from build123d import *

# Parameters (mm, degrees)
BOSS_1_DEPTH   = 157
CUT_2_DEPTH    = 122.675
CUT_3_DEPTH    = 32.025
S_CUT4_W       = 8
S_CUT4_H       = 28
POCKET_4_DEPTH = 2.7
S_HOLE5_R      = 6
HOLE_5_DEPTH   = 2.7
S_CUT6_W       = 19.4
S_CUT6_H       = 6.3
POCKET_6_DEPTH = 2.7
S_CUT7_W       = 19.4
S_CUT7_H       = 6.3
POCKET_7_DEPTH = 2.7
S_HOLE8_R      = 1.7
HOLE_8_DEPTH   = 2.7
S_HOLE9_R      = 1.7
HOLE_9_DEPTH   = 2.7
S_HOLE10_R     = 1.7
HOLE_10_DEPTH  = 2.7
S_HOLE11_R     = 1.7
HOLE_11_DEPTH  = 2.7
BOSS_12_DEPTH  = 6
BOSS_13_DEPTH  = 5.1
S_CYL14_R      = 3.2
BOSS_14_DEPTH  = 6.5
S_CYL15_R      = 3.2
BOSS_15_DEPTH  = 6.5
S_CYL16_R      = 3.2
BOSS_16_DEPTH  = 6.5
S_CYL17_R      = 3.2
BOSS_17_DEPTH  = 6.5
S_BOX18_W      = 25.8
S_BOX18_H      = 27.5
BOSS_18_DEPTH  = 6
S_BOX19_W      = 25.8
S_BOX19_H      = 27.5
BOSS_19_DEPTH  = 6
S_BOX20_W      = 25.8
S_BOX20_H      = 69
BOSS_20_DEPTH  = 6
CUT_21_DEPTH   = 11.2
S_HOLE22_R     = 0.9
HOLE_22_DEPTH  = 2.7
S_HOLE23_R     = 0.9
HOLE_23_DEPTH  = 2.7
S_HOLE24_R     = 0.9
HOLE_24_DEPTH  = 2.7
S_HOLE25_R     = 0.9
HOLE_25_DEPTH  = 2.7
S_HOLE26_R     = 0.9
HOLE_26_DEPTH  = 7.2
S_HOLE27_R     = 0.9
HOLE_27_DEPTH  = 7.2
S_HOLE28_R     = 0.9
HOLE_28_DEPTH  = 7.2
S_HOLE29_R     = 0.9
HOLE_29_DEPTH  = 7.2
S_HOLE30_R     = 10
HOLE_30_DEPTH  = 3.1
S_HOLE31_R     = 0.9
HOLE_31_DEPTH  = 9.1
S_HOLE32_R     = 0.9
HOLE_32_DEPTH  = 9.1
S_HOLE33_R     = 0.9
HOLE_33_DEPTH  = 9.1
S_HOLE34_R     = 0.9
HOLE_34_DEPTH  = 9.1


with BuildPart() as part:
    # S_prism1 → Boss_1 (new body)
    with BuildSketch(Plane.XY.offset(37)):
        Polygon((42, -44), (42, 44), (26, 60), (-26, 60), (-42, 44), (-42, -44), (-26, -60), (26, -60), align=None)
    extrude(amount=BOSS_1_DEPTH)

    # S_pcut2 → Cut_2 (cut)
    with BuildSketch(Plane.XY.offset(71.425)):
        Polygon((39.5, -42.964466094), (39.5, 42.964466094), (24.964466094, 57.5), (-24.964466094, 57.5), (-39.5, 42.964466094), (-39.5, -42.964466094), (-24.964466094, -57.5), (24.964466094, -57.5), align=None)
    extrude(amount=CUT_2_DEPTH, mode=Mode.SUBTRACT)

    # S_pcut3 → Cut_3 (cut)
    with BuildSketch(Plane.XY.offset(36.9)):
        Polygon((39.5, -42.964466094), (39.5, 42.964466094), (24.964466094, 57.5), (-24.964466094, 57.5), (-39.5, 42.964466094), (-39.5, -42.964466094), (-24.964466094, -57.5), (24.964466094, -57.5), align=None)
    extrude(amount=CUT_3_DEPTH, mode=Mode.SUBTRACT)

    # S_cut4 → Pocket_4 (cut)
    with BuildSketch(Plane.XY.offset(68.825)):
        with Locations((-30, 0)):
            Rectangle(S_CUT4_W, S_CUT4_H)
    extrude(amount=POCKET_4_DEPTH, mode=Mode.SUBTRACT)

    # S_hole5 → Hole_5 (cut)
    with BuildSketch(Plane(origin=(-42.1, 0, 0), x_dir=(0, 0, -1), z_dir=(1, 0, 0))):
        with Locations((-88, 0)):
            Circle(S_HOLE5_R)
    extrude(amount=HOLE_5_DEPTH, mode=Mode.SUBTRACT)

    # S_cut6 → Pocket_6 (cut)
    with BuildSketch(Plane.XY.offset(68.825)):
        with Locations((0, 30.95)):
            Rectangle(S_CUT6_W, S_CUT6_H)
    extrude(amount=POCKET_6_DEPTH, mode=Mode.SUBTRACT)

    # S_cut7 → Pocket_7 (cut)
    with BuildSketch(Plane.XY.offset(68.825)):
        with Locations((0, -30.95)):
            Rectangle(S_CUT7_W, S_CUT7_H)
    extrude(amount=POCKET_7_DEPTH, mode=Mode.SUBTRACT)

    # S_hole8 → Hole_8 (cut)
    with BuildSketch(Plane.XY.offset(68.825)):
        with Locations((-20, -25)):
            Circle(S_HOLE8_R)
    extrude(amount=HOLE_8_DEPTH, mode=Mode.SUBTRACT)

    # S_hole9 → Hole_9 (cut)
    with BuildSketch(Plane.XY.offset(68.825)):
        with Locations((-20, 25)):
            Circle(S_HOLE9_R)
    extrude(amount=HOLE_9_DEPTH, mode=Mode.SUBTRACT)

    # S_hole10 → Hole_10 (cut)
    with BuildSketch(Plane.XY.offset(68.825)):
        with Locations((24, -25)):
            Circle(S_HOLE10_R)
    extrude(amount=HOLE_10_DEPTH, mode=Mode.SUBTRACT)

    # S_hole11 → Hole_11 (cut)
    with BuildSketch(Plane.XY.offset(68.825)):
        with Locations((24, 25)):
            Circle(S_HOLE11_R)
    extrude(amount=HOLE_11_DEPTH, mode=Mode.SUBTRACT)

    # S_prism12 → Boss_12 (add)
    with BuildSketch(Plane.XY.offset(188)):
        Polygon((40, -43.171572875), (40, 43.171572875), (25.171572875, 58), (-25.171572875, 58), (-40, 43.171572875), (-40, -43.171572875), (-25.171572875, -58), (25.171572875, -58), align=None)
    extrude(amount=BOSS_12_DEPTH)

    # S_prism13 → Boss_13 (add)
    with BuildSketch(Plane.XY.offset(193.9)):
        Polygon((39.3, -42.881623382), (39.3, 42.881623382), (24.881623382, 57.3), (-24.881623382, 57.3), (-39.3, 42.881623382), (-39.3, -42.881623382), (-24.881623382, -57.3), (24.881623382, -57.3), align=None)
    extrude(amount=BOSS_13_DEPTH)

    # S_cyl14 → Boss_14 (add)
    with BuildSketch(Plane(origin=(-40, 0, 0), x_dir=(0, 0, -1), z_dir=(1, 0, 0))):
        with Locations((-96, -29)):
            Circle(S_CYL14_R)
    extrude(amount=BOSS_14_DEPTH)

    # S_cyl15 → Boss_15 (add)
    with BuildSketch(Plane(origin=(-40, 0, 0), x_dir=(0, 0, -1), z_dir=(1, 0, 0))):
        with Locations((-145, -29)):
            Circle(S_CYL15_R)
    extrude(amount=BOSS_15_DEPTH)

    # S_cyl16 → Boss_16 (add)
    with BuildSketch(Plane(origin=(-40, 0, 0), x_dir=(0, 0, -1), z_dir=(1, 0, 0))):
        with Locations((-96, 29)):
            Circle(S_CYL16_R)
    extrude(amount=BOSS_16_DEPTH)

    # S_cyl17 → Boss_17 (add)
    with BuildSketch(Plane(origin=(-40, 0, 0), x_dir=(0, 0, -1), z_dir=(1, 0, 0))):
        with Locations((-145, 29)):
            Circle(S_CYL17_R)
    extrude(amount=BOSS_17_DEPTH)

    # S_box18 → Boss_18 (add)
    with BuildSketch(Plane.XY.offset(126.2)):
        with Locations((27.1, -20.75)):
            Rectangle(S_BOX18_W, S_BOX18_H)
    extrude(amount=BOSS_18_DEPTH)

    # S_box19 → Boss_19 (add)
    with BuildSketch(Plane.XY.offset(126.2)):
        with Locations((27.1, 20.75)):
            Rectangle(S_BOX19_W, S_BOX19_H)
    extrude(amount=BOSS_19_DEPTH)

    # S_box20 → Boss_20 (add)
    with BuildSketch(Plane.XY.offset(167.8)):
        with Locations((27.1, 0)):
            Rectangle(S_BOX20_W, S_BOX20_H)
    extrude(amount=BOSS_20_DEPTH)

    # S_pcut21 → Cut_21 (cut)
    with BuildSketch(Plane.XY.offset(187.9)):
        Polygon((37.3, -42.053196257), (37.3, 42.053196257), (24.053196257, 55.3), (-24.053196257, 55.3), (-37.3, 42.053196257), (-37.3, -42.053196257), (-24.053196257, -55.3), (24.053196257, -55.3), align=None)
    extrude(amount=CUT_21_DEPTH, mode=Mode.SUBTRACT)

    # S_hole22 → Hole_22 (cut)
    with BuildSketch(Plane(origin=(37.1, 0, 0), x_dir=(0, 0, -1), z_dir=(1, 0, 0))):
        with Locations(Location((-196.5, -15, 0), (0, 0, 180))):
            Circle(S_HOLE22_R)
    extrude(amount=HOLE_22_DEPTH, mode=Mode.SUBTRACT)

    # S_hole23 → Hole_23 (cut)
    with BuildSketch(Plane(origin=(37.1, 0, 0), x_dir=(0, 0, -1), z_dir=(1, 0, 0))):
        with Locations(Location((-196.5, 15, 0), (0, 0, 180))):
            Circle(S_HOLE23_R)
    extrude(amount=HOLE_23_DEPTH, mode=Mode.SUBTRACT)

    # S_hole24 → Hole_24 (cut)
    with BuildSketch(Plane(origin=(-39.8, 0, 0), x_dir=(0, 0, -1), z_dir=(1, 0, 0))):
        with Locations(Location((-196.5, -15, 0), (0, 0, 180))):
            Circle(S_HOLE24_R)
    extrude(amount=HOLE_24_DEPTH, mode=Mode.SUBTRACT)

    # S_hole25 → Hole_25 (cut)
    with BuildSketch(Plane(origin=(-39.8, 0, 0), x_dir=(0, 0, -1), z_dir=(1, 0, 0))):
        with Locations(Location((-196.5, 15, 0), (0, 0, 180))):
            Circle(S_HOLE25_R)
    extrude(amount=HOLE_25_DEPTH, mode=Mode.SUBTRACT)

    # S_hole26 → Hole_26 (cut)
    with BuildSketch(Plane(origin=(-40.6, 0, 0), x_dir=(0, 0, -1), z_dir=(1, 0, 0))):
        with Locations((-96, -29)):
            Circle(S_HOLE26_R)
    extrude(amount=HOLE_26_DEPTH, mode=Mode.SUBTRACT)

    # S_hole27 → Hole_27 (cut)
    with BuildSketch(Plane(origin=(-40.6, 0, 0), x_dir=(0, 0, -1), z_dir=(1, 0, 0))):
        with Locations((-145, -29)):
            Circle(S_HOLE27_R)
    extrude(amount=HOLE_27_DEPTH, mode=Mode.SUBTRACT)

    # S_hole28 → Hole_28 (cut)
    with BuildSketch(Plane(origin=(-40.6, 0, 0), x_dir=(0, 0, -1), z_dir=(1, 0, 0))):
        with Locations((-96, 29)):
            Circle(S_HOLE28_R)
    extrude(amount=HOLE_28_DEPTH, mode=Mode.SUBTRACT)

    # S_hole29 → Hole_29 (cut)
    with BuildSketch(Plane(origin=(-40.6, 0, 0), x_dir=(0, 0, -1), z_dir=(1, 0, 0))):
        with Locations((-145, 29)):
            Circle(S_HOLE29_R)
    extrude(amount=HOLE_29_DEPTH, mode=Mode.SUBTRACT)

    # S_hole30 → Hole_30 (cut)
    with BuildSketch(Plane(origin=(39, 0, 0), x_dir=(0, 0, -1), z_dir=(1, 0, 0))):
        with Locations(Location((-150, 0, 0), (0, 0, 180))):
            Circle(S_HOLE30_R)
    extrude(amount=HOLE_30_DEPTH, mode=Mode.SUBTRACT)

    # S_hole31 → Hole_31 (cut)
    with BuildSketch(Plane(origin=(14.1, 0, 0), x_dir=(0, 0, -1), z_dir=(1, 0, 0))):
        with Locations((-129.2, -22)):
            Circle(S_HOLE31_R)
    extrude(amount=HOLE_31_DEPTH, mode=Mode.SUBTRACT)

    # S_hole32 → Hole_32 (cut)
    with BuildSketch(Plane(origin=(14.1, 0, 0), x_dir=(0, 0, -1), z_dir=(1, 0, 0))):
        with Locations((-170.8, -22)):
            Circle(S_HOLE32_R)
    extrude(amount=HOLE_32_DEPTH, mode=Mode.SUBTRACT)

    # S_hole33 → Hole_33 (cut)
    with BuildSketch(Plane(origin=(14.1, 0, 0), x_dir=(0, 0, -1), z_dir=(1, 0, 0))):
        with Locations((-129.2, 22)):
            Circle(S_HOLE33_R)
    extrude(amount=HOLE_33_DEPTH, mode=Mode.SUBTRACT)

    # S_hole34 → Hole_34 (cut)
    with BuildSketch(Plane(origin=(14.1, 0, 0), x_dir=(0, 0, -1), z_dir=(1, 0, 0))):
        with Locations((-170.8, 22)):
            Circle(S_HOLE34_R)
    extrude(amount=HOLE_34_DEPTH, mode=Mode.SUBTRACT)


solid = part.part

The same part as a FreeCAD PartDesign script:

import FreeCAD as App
import Part
import Sketcher
Q = App.Units.Quantity

doc = App.newDocument("Part")
body = doc.addObject("PartDesign::Body", "Body")

sketch1 = body.newObject("Sketcher::SketchObject", "Sketch")
sketch1.AttachmentSupport = (doc.getObject("XY_Plane"), [""])
sketch1.MapMode = "FlatFace"
sketch1.AttachmentOffset = App.Placement(App.Vector(0, 0, 37), App.Rotation())
sketch1.addGeometry([
    Part.LineSegment(App.Vector(42, -44, 0), App.Vector(42, 44, 0)),
    Part.LineSegment(App.Vector(42, 44, 0), App.Vector(26, 60, 0)),
    Part.LineSegment(App.Vector(26, 60, 0), App.Vector(-26, 60, 0)),
    Part.LineSegment(App.Vector(-26, 60, 0), App.Vector(-42, 44, 0)),
    Part.LineSegment(App.Vector(-42, 44, 0), App.Vector(-42, -44, 0)),
    Part.LineSegment(App.Vector(-42, -44, 0), App.Vector(-26, -60, 0)),
    Part.LineSegment(App.Vector(-26, -60, 0), App.Vector(26, -60, 0)),
    Part.LineSegment(App.Vector(26, -60, 0), App.Vector(42, -44, 0)),
], False)
sketch1.addConstraint([
    Sketcher.Constraint("Coincident", 0, 2, 1, 1),
    Sketcher.Constraint("Coincident", 1, 2, 2, 1),
    Sketcher.Constraint("Coincident", 2, 2, 3, 1),
    Sketcher.Constraint("Coincident", 3, 2, 4, 1),
    Sketcher.Constraint("Coincident", 4, 2, 5, 1),
    Sketcher.Constraint("Coincident", 5, 2, 6, 1),
    Sketcher.Constraint("Coincident", 6, 2, 7, 1),
    Sketcher.Constraint("Coincident", 7, 2, 0, 1),
    Sketcher.Constraint("Vertical", 0),
    Sketcher.Constraint("Horizontal", 2),
    Sketcher.Constraint("Vertical", 4),
    Sketcher.Constraint("Horizontal", 6),
    Sketcher.Constraint("Symmetric", 0, 2, 4, 2, -1, 1),
    Sketcher.Constraint("Symmetric", 1, 2, 5, 2, -1, 1),
    Sketcher.Constraint("Perpendicular", 1, 3),
    Sketcher.Constraint("Perpendicular", 5, 7),
    Sketcher.Constraint("Horizontal", 0, 2, 3, 2),
    Sketcher.Constraint("Horizontal", 4, 2, 7, 2),
    Sketcher.Constraint("Vertical", 2, 2, 5, 2),
    Sketcher.Constraint("DistanceX", 2, 2, 2, 1, Q("52 mm")),
    Sketcher.Constraint("DistanceY", 0, 1, 0, 2, Q("88 mm")),
    Sketcher.Constraint("DistanceX", -1, 1, 0, 2, Q("42 mm")),
])
pad1 = body.newObject("PartDesign::Pad", "Pad")
pad1.Profile = sketch1
pad1.Length = 157

sketch2 = body.newObject("Sketcher::SketchObject", "Sketch001")
sketch2.AttachmentSupport = (doc.getObject("XY_Plane"), [""])
sketch2.MapMode = "FlatFace"
sketch2.AttachmentOffset = App.Placement(App.Vector(0, 0, 71.425), App.Rotation())
sketch2.addGeometry([
    Part.LineSegment(App.Vector(40, -43, 0), App.Vector(40, 43, 0)),
    Part.LineSegment(App.Vector(40, 43, 0), App.Vector(25, 58, 0)),
    Part.LineSegment(App.Vector(25, 58, 0), App.Vector(-25, 58, 0)),
    Part.LineSegment(App.Vector(-25, 58, 0), App.Vector(-40, 43, 0)),
    Part.LineSegment(App.Vector(-40, 43, 0), App.Vector(-40, -43, 0)),
    Part.LineSegment(App.Vector(-40, -43, 0), App.Vector(-25, -58, 0)),
    Part.LineSegment(App.Vector(-25, -58, 0), App.Vector(25, -58, 0)),
    Part.LineSegment(App.Vector(25, -58, 0), App.Vector(40, -43, 0)),
], False)
sketch2.addConstraint([
    Sketcher.Constraint("Coincident", 0, 2, 1, 1),
    Sketcher.Constraint("Coincident", 1, 2, 2, 1),
    Sketcher.Constraint("Coincident", 2, 2, 3, 1),
    Sketcher.Constraint("Coincident", 3, 2, 4, 1),
    Sketcher.Constraint("Coincident", 4, 2, 5, 1),
    Sketcher.Constraint("Coincident", 5, 2, 6, 1),
    Sketcher.Constraint("Coincident", 6, 2, 7, 1),
    Sketcher.Constraint("Coincident", 7, 2, 0, 1),
    Sketcher.Constraint("Vertical", 0),
    Sketcher.Constraint("Horizontal", 2),
    Sketcher.Constraint("Vertical", 4),
    Sketcher.Constraint("Horizontal", 6),
    Sketcher.Constraint("Symmetric", 0, 2, 4, 2, -1, 1),
    Sketcher.Constraint("Symmetric", 1, 2, 5, 2, -1, 1),
    Sketcher.Constraint("Perpendicular", 1, 3),
    Sketcher.Constraint("Perpendicular", 5, 7),
    Sketcher.Constraint("Horizontal", 0, 2, 3, 2),
    Sketcher.Constraint("Horizontal", 4, 2, 7, 2),
    Sketcher.Constraint("Vertical", 2, 2, 5, 2),
    Sketcher.Constraint("DistanceX", 3, 2, 0, 2, Q("79 mm")),
    Sketcher.Constraint("DistanceY", 5, 2, 2, 2, Q("115 mm")),
    Sketcher.Constraint("Distance", 1, Q("20.556349 mm")),
])
pocket1 = body.newObject("PartDesign::Pocket", "Pocket")
pocket1.Profile = sketch2
pocket1.Length = 122.675
pocket1.Reversed = True

sketch3 = body.newObject("Sketcher::SketchObject", "Sketch002")
sketch3.AttachmentSupport = (doc.getObject("XY_Plane"), [""])
sketch3.MapMode = "FlatFace"
sketch3.AttachmentOffset = App.Placement(App.Vector(0, 0, 36.9), App.Rotation())
sketch3.addGeometry([
    Part.LineSegment(App.Vector(40, -43, 0), App.Vector(40, 43, 0)),
    Part.LineSegment(App.Vector(40, 43, 0), App.Vector(25, 58, 0)),
    Part.LineSegment(App.Vector(25, 58, 0), App.Vector(-25, 58, 0)),
    Part.LineSegment(App.Vector(-25, 58, 0), App.Vector(-40, 43, 0)),
    Part.LineSegment(App.Vector(-40, 43, 0), App.Vector(-40, -43, 0)),
    Part.LineSegment(App.Vector(-40, -43, 0), App.Vector(-25, -58, 0)),
    Part.LineSegment(App.Vector(-25, -58, 0), App.Vector(25, -58, 0)),
    Part.LineSegment(App.Vector(25, -58, 0), App.Vector(40, -43, 0)),
], False)
sketch3.addConstraint([
    Sketcher.Constraint("Coincident", 0, 2, 1, 1),
    Sketcher.Constraint("Coincident", 1, 2, 2, 1),
    Sketcher.Constraint("Coincident", 2, 2, 3, 1),
    Sketcher.Constraint("Coincident", 3, 2, 4, 1),
    Sketcher.Constraint("Coincident", 4, 2, 5, 1),
    Sketcher.Constraint("Coincident", 5, 2, 6, 1),
    Sketcher.Constraint("Coincident", 6, 2, 7, 1),
    Sketcher.Constraint("Coincident", 7, 2, 0, 1),
    Sketcher.Constraint("Vertical", 0),
    Sketcher.Constraint("Horizontal", 2),
    Sketcher.Constraint("Vertical", 4),
    Sketcher.Constraint("Horizontal", 6),
    Sketcher.Constraint("Symmetric", 0, 2, 4, 2, -1, 1),
    Sketcher.Constraint("Symmetric", 1, 2, 5, 2, -1, 1),
    Sketcher.Constraint("Perpendicular", 1, 3),
    Sketcher.Constraint("Perpendicular", 5, 7),
    Sketcher.Constraint("Horizontal", 0, 2, 3, 2),
    Sketcher.Constraint("Horizontal", 4, 2, 7, 2),
    Sketcher.Constraint("Vertical", 2, 2, 5, 2),
    Sketcher.Constraint("DistanceX", 3, 2, 0, 2, Q("79 mm")),
    Sketcher.Constraint("DistanceY", 5, 2, 2, 2, Q("115 mm")),
    Sketcher.Constraint("Distance", 1, Q("20.556349 mm")),
])
pocket2 = body.newObject("PartDesign::Pocket", "Pocket001")
pocket2.Profile = sketch3
pocket2.Length = 32.025
pocket2.Reversed = True

sketch4 = body.newObject("Sketcher::SketchObject", "Sketch003")
sketch4.AttachmentSupport = (doc.getObject("XY_Plane"), [""])
sketch4.MapMode = "FlatFace"
sketch4.AttachmentOffset = App.Placement(App.Vector(0, 0, 68.825), App.Rotation())
sketch4.addGeometry([
    Part.LineSegment(App.Vector(-34, 14, 0), App.Vector(-34, -14, 0)),
    Part.LineSegment(App.Vector(-34, -14, 0), App.Vector(-26, -14, 0)),
    Part.LineSegment(App.Vector(-26, -14, 0), App.Vector(-26, 14, 0)),
    Part.LineSegment(App.Vector(-26, 14, 0), App.Vector(-34, 14, 0)),
], False)
sketch4.addConstraint([
    Sketcher.Constraint("Coincident", 0, 2, 1, 1),
    Sketcher.Constraint("Coincident", 1, 2, 2, 1),
    Sketcher.Constraint("Coincident", 2, 2, 3, 1),
    Sketcher.Constraint("Coincident", 3, 2, 0, 1),
    Sketcher.Constraint("Vertical", 0),
    Sketcher.Constraint("Horizontal", 1),
    Sketcher.Constraint("Vertical", 2),
    Sketcher.Constraint("Horizontal", 3),
    Sketcher.Constraint("DistanceX", 1, 1, 1, 2, Q("8 mm")),
    Sketcher.Constraint("DistanceY", 0, 2, 0, 1, Q("28 mm")),
    Sketcher.Constraint("DistanceX", 0, 2, -1, 1, Q("34 mm")),
    Sketcher.Constraint("DistanceY", 0, 2, -1, 1, Q("14 mm")),
])
pocket3 = body.newObject("PartDesign::Pocket", "Pocket002")
pocket3.Profile = sketch4
pocket3.Length = 2.7
pocket3.Reversed = True

sketch5 = body.newObject("Sketcher::SketchObject", "Sketch004")
sketch5.AttachmentSupport = (doc.getObject("YZ_Plane"), [""])
sketch5.MapMode = "FlatFace"
sketch5.AttachmentOffset = App.Placement(App.Vector(0, 0, -42.1), App.Rotation())
sketch5.addGeometry(Part.Circle(App.Vector(0, 88, 0), App.Vector(0, 0, 1), 6), False)
sketch5.addConstraint([
    Sketcher.Constraint("PointOnObject", 0, 3, -2),
    Sketcher.Constraint("Diameter", 0, Q("12 mm")),
    Sketcher.Constraint("DistanceY", -1, 1, 0, 3, Q("88 mm")),
])
pocket4 = body.newObject("PartDesign::Pocket", "Pocket003")
pocket4.Profile = sketch5
pocket4.Length = 2.7
pocket4.Reversed = True

sketch6 = body.newObject("Sketcher::SketchObject", "Sketch005")
sketch6.AttachmentSupport = (doc.getObject("XY_Plane"), [""])
sketch6.MapMode = "FlatFace"
sketch6.AttachmentOffset = App.Placement(App.Vector(0, 0, 68.825), App.Rotation())
sketch6.addGeometry([
    Part.LineSegment(App.Vector(-10, 34, 0), App.Vector(-10, 28, 0)),
    Part.LineSegment(App.Vector(-10, 28, 0), App.Vector(10, 28, 0)),
    Part.LineSegment(App.Vector(10, 28, 0), App.Vector(10, 34, 0)),
    Part.LineSegment(App.Vector(10, 34, 0), App.Vector(-10, 34, 0)),
], False)
sketch6.addConstraint([
    Sketcher.Constraint("Coincident", 0, 2, 1, 1),
    Sketcher.Constraint("Coincident", 1, 2, 2, 1),
    Sketcher.Constraint("Coincident", 2, 2, 3, 1),
    Sketcher.Constraint("Coincident", 3, 2, 0, 1),
    Sketcher.Constraint("Vertical", 0),
    Sketcher.Constraint("Horizontal", 1),
    Sketcher.Constraint("Vertical", 2),
    Sketcher.Constraint("Horizontal", 3),
    Sketcher.Constraint("DistanceX", 1, 1, 1, 2, Q("19.4 mm")),
    Sketcher.Constraint("DistanceY", 0, 2, 0, 1, Q("6.3 mm")),
    Sketcher.Constraint("DistanceX", 0, 2, -1, 1, Q("9.7 mm")),
    Sketcher.Constraint("DistanceY", -1, 1, 0, 2, Q("27.8 mm")),
])
pocket5 = body.newObject("PartDesign::Pocket", "Pocket004")
pocket5.Profile = sketch6
pocket5.Length = 2.7
pocket5.Reversed = True

sketch7 = body.newObject("Sketcher::SketchObject", "Sketch006")
sketch7.AttachmentSupport = (doc.getObject("XY_Plane"), [""])
sketch7.MapMode = "FlatFace"
sketch7.AttachmentOffset = App.Placement(App.Vector(0, 0, 68.825), App.Rotation())
sketch7.addGeometry([
    Part.LineSegment(App.Vector(-10, -28, 0), App.Vector(-10, -34, 0)),
    Part.LineSegment(App.Vector(-10, -34, 0), App.Vector(10, -34, 0)),
    Part.LineSegment(App.Vector(10, -34, 0), App.Vector(10, -28, 0)),
    Part.LineSegment(App.Vector(10, -28, 0), App.Vector(-10, -28, 0)),
], False)
sketch7.addConstraint([
    Sketcher.Constraint("Coincident", 0, 2, 1, 1),
    Sketcher.Constraint("Coincident", 1, 2, 2, 1),
    Sketcher.Constraint("Coincident", 2, 2, 3, 1),
    Sketcher.Constraint("Coincident", 3, 2, 0, 1),
    Sketcher.Constraint("Vertical", 0),
    Sketcher.Constraint("Horizontal", 1),
    Sketcher.Constraint("Vertical", 2),
    Sketcher.Constraint("Horizontal", 3),
    Sketcher.Constraint("DistanceX", 1, 1, 1, 2, Q("19.4 mm")),
    Sketcher.Constraint("DistanceY", 0, 2, 0, 1, Q("6.3 mm")),
    Sketcher.Constraint("DistanceX", 0, 2, -1, 1, Q("9.7 mm")),
    Sketcher.Constraint("DistanceY", 0, 2, -1, 1, Q("34.1 mm")),
])
pocket6 = body.newObject("PartDesign::Pocket", "Pocket005")
pocket6.Profile = sketch7
pocket6.Length = 2.7
pocket6.Reversed = True

sketch8 = body.newObject("Sketcher::SketchObject", "Sketch007")
sketch8.AttachmentSupport = (doc.getObject("XY_Plane"), [""])
sketch8.MapMode = "FlatFace"
sketch8.AttachmentOffset = App.Placement(App.Vector(0, 0, 68.825), App.Rotation())
sketch8.addGeometry(Part.Circle(App.Vector(-20, -25, 0), App.Vector(0, 0, 1), 1.7), False)
sketch8.addConstraint([
    Sketcher.Constraint("Diameter", 0, Q("3.4 mm")),
    Sketcher.Constraint("DistanceX", 0, 3, -1, 1, Q("20 mm")),
    Sketcher.Constraint("DistanceY", 0, 3, -1, 1, Q("25 mm")),
])
pocket7 = body.newObject("PartDesign::Pocket", "Pocket006")
pocket7.Profile = sketch8
pocket7.Length = 2.7
pocket7.Reversed = True

sketch9 = body.newObject("Sketcher::SketchObject", "Sketch008")
sketch9.AttachmentSupport = (doc.getObject("XY_Plane"), [""])
sketch9.MapMode = "FlatFace"
sketch9.AttachmentOffset = App.Placement(App.Vector(0, 0, 68.825), App.Rotation())
sketch9.addGeometry(Part.Circle(App.Vector(-20, 25, 0), App.Vector(0, 0, 1), 1.7), False)
sketch9.addConstraint([
    Sketcher.Constraint("Diameter", 0, Q("3.4 mm")),
    Sketcher.Constraint("DistanceX", 0, 3, -1, 1, Q("20 mm")),
    Sketcher.Constraint("DistanceY", -1, 1, 0, 3, Q("25 mm")),
])
pocket8 = body.newObject("PartDesign::Pocket", "Pocket007")
pocket8.Profile = sketch9
pocket8.Length = 2.7
pocket8.Reversed = True

sketch10 = body.newObject("Sketcher::SketchObject", "Sketch009")
sketch10.AttachmentSupport = (doc.getObject("XY_Plane"), [""])
sketch10.MapMode = "FlatFace"
sketch10.AttachmentOffset = App.Placement(App.Vector(0, 0, 68.825), App.Rotation())
sketch10.addGeometry(Part.Circle(App.Vector(24, -25, 0), App.Vector(0, 0, 1), 1.7), False)
sketch10.addConstraint([
    Sketcher.Constraint("Diameter", 0, Q("3.4 mm")),
    Sketcher.Constraint("DistanceX", -1, 1, 0, 3, Q("24 mm")),
    Sketcher.Constraint("DistanceY", 0, 3, -1, 1, Q("25 mm")),
])
pocket9 = body.newObject("PartDesign::Pocket", "Pocket008")
pocket9.Profile = sketch10
pocket9.Length = 2.7
pocket9.Reversed = True

sketch11 = body.newObject("Sketcher::SketchObject", "Sketch010")
sketch11.AttachmentSupport = (doc.getObject("XY_Plane"), [""])
sketch11.MapMode = "FlatFace"
sketch11.AttachmentOffset = App.Placement(App.Vector(0, 0, 68.825), App.Rotation())
sketch11.addGeometry(Part.Circle(App.Vector(24, 25, 0), App.Vector(0, 0, 1), 1.7), False)
sketch11.addConstraint([
    Sketcher.Constraint("Diameter", 0, Q("3.4 mm")),
    Sketcher.Constraint("DistanceX", -1, 1, 0, 3, Q("24 mm")),
    Sketcher.Constraint("DistanceY", -1, 1, 0, 3, Q("25 mm")),
])
pocket10 = body.newObject("PartDesign::Pocket", "Pocket009")
pocket10.Profile = sketch11
pocket10.Length = 2.7
pocket10.Reversed = True

sketch12 = body.newObject("Sketcher::SketchObject", "Sketch011")
sketch12.AttachmentSupport = (doc.getObject("XY_Plane"), [""])
sketch12.MapMode = "FlatFace"
sketch12.AttachmentOffset = App.Placement(App.Vector(0, 0, 188), App.Rotation())
sketch12.addGeometry([
    Part.LineSegment(App.Vector(40, -43, 0), App.Vector(40, 43, 0)),
    Part.LineSegment(App.Vector(40, 43, 0), App.Vector(25, 58, 0)),
    Part.LineSegment(App.Vector(25, 58, 0), App.Vector(-25, 58, 0)),
    Part.LineSegment(App.Vector(-25, 58, 0), App.Vector(-40, 43, 0)),
    Part.LineSegment(App.Vector(-40, 43, 0), App.Vector(-40, -43, 0)),
    Part.LineSegment(App.Vector(-40, -43, 0), App.Vector(-25, -58, 0)),
    Part.LineSegment(App.Vector(-25, -58, 0), App.Vector(25, -58, 0)),
    Part.LineSegment(App.Vector(25, -58, 0), App.Vector(40, -43, 0)),
], False)
sketch12.addConstraint([
    Sketcher.Constraint("Coincident", 0, 2, 1, 1),
    Sketcher.Constraint("Coincident", 1, 2, 2, 1),
    Sketcher.Constraint("Coincident", 2, 2, 3, 1),
    Sketcher.Constraint("Coincident", 3, 2, 4, 1),
    Sketcher.Constraint("Coincident", 4, 2, 5, 1),
    Sketcher.Constraint("Coincident", 5, 2, 6, 1),
    Sketcher.Constraint("Coincident", 6, 2, 7, 1),
    Sketcher.Constraint("Coincident", 7, 2, 0, 1),
    Sketcher.Constraint("Vertical", 0),
    Sketcher.Constraint("Horizontal", 2),
    Sketcher.Constraint("Vertical", 4),
    Sketcher.Constraint("Horizontal", 6),
    Sketcher.Constraint("Symmetric", 0, 2, 4, 2, -1, 1),
    Sketcher.Constraint("Symmetric", 1, 2, 5, 2, -1, 1),
    Sketcher.Constraint("Perpendicular", 1, 3),
    Sketcher.Constraint("Perpendicular", 5, 7),
    Sketcher.Constraint("Horizontal", 0, 2, 3, 2),
    Sketcher.Constraint("Horizontal", 4, 2, 7, 2),
    Sketcher.Constraint("Vertical", 2, 2, 5, 2),
    Sketcher.Constraint("DistanceX", -1, 1, 0, 2, Q("40 mm")),
    Sketcher.Constraint("DistanceY", -1, 1, 1, 2, Q("58 mm")),
    Sketcher.Constraint("DistanceX", 2, 2, 2, 1, Q("50.343146 mm")),
])
pad2 = body.newObject("PartDesign::Pad", "Pad001")
pad2.Profile = sketch12
pad2.Length = 6

sketch13 = body.newObject("Sketcher::SketchObject", "Sketch012")
sketch13.AttachmentSupport = (doc.getObject("XY_Plane"), [""])
sketch13.MapMode = "FlatFace"
sketch13.AttachmentOffset = App.Placement(App.Vector(0, 0, 193.9), App.Rotation())
sketch13.addGeometry([
    Part.LineSegment(App.Vector(39, -43, 0), App.Vector(39, 43, 0)),
    Part.LineSegment(App.Vector(39, 43, 0), App.Vector(25, 57, 0)),
    Part.LineSegment(App.Vector(25, 57, 0), App.Vector(-25, 57, 0)),
    Part.LineSegment(App.Vector(-25, 57, 0), App.Vector(-39, 43, 0)),
    Part.LineSegment(App.Vector(-39, 43, 0), App.Vector(-39, -43, 0)),
    Part.LineSegment(App.Vector(-39, -43, 0), App.Vector(-25, -57, 0)),
    Part.LineSegment(App.Vector(-25, -57, 0), App.Vector(25, -57, 0)),
    Part.LineSegment(App.Vector(25, -57, 0), App.Vector(39, -43, 0)),
], False)
sketch13.addConstraint([
    Sketcher.Constraint("Coincident", 0, 2, 1, 1),
    Sketcher.Constraint("Coincident", 1, 2, 2, 1),
    Sketcher.Constraint("Coincident", 2, 2, 3, 1),
    Sketcher.Constraint("Coincident", 3, 2, 4, 1),
    Sketcher.Constraint("Coincident", 4, 2, 5, 1),
    Sketcher.Constraint("Coincident", 5, 2, 6, 1),
    Sketcher.Constraint("Coincident", 6, 2, 7, 1),
    Sketcher.Constraint("Coincident", 7, 2, 0, 1),
    Sketcher.Constraint("Vertical", 0),
    Sketcher.Constraint("Horizontal", 2),
    Sketcher.Constraint("Vertical", 4),
    Sketcher.Constraint("Horizontal", 6),
    Sketcher.Constraint("Symmetric", 0, 2, 4, 2, -1, 1),
    Sketcher.Constraint("Symmetric", 1, 2, 5, 2, -1, 1),
    Sketcher.Constraint("Perpendicular", 1, 3),
    Sketcher.Constraint("Perpendicular", 5, 7),
    Sketcher.Constraint("Horizontal", 0, 2, 3, 2),
    Sketcher.Constraint("Horizontal", 4, 2, 7, 2),
    Sketcher.Constraint("Vertical", 2, 2, 5, 2),
    Sketcher.Constraint("DistanceX", -1, 1, 0, 2, Q("39.3 mm")),
    Sketcher.Constraint("DistanceY", -1, 1, 1, 2, Q("57.3 mm")),
    Sketcher.Constraint("DistanceX", 2, 2, 2, 1, Q("49.763247 mm")),
])
pad3 = body.newObject("PartDesign::Pad", "Pad002")
pad3.Profile = sketch13
pad3.Length = 5.1

sketch14 = body.newObject("Sketcher::SketchObject", "Sketch013")
sketch14.AttachmentSupport = (doc.getObject("YZ_Plane"), [""])
sketch14.MapMode = "FlatFace"
sketch14.AttachmentOffset = App.Placement(App.Vector(0, 0, -40), App.Rotation())
sketch14.addGeometry(Part.Circle(App.Vector(-29, 96, 0), App.Vector(0, 0, 1), 3.2), False)
sketch14.addConstraint([
    Sketcher.Constraint("Diameter", 0, Q("6.4 mm")),
    Sketcher.Constraint("DistanceX", 0, 3, -1, 1, Q("29 mm")),
    Sketcher.Constraint("DistanceY", -1, 1, 0, 3, Q("96 mm")),
])
pad4 = body.newObject("PartDesign::Pad", "Pad003")
pad4.Profile = sketch14
pad4.Length = 6.5

sketch15 = body.newObject("Sketcher::SketchObject", "Sketch014")
sketch15.AttachmentSupport = (doc.getObject("YZ_Plane"), [""])
sketch15.MapMode = "FlatFace"
sketch15.AttachmentOffset = App.Placement(App.Vector(0, 0, -40), App.Rotation())
sketch15.addGeometry(Part.Circle(App.Vector(-29, 145, 0), App.Vector(0, 0, 1), 3.2), False)
sketch15.addConstraint([
    Sketcher.Constraint("Diameter", 0, Q("6.4 mm")),
    Sketcher.Constraint("DistanceX", 0, 3, -1, 1, Q("29 mm")),
    Sketcher.Constraint("DistanceY", -1, 1, 0, 3, Q("145 mm")),
])
pad5 = body.newObject("PartDesign::Pad", "Pad004")
pad5.Profile = sketch15
pad5.Length = 6.5

sketch16 = body.newObject("Sketcher::SketchObject", "Sketch015")
sketch16.AttachmentSupport = (doc.getObject("YZ_Plane"), [""])
sketch16.MapMode = "FlatFace"
sketch16.AttachmentOffset = App.Placement(App.Vector(0, 0, -40), App.Rotation())
sketch16.addGeometry(Part.Circle(App.Vector(29, 96, 0), App.Vector(0, 0, 1), 3.2), False)
sketch16.addConstraint([
    Sketcher.Constraint("Diameter", 0, Q("6.4 mm")),
    Sketcher.Constraint("DistanceX", -1, 1, 0, 3, Q("29 mm")),
    Sketcher.Constraint("DistanceY", -1, 1, 0, 3, Q("96 mm")),
])
pad6 = body.newObject("PartDesign::Pad", "Pad005")
pad6.Profile = sketch16
pad6.Length = 6.5

sketch17 = body.newObject("Sketcher::SketchObject", "Sketch016")
sketch17.AttachmentSupport = (doc.getObject("YZ_Plane"), [""])
sketch17.MapMode = "FlatFace"
sketch17.AttachmentOffset = App.Placement(App.Vector(0, 0, -40), App.Rotation())
sketch17.addGeometry(Part.Circle(App.Vector(29, 145, 0), App.Vector(0, 0, 1), 3.2), False)
sketch17.addConstraint([
    Sketcher.Constraint("Diameter", 0, Q("6.4 mm")),
    Sketcher.Constraint("DistanceX", -1, 1, 0, 3, Q("29 mm")),
    Sketcher.Constraint("DistanceY", -1, 1, 0, 3, Q("145 mm")),
])
pad7 = body.newObject("PartDesign::Pad", "Pad006")
pad7.Profile = sketch17
pad7.Length = 6.5

sketch18 = body.newObject("Sketcher::SketchObject", "Sketch017")
sketch18.AttachmentSupport = (doc.getObject("XY_Plane"), [""])
sketch18.MapMode = "FlatFace"
sketch18.AttachmentOffset = App.Placement(App.Vector(0, 0, 126.2), App.Rotation())
sketch18.addGeometry([
    Part.LineSegment(App.Vector(14, -7, 0), App.Vector(14, -34, 0)),
    Part.LineSegment(App.Vector(14, -34, 0), App.Vector(40, -34, 0)),
    Part.LineSegment(App.Vector(40, -34, 0), App.Vector(40, -7, 0)),
    Part.LineSegment(App.Vector(40, -7, 0), App.Vector(14, -7, 0)),
], False)
sketch18.addConstraint([
    Sketcher.Constraint("Coincident", 0, 2, 1, 1),
    Sketcher.Constraint("Coincident", 1, 2, 2, 1),
    Sketcher.Constraint("Coincident", 2, 2, 3, 1),
    Sketcher.Constraint("Coincident", 3, 2, 0, 1),
    Sketcher.Constraint("Vertical", 0),
    Sketcher.Constraint("Horizontal", 1),
    Sketcher.Constraint("Vertical", 2),
    Sketcher.Constraint("Horizontal", 3),
    Sketcher.Constraint("DistanceX", 1, 1, 1, 2, Q("25.8 mm")),
    Sketcher.Constraint("DistanceY", 0, 2, 0, 1, Q("27.5 mm")),
    Sketcher.Constraint("DistanceX", -1, 1, 1, 2, Q("40 mm")),
    Sketcher.Constraint("DistanceY", 2, 2, -1, 1, Q("7 mm")),
])
pad8 = body.newObject("PartDesign::Pad", "Pad007")
pad8.Profile = sketch18
pad8.Length = 6

sketch19 = body.newObject("Sketcher::SketchObject", "Sketch018")
sketch19.AttachmentSupport = (doc.getObject("XY_Plane"), [""])
sketch19.MapMode = "FlatFace"
sketch19.AttachmentOffset = App.Placement(App.Vector(0, 0, 126.2), App.Rotation())
sketch19.addGeometry([
    Part.LineSegment(App.Vector(14, 34, 0), App.Vector(14, 7, 0)),
    Part.LineSegment(App.Vector(14, 7, 0), App.Vector(40, 7, 0)),
    Part.LineSegment(App.Vector(40, 7, 0), App.Vector(40, 34, 0)),
    Part.LineSegment(App.Vector(40, 34, 0), App.Vector(14, 34, 0)),
], False)
sketch19.addConstraint([
    Sketcher.Constraint("Coincident", 0, 2, 1, 1),
    Sketcher.Constraint("Coincident", 1, 2, 2, 1),
    Sketcher.Constraint("Coincident", 2, 2, 3, 1),
    Sketcher.Constraint("Coincident", 3, 2, 0, 1),
    Sketcher.Constraint("Vertical", 0),
    Sketcher.Constraint("Horizontal", 1),
    Sketcher.Constraint("Vertical", 2),
    Sketcher.Constraint("Horizontal", 3),
    Sketcher.Constraint("DistanceX", 1, 1, 1, 2, Q("25.8 mm")),
    Sketcher.Constraint("DistanceY", 0, 2, 0, 1, Q("27.5 mm")),
    Sketcher.Constraint("DistanceY", -1, 1, 0, 2, Q("7 mm")),
    Sketcher.Constraint("DistanceX", -1, 1, 1, 2, Q("40 mm")),
])
pad9 = body.newObject("PartDesign::Pad", "Pad008")
pad9.Profile = sketch19
pad9.Length = 6

sketch20 = body.newObject("Sketcher::SketchObject", "Sketch019")
sketch20.AttachmentSupport = (doc.getObject("XY_Plane"), [""])
sketch20.MapMode = "FlatFace"
sketch20.AttachmentOffset = App.Placement(App.Vector(0, 0, 167.8), App.Rotation())
sketch20.addGeometry([
    Part.LineSegment(App.Vector(14, 34, 0), App.Vector(14, -34, 0)),
    Part.LineSegment(App.Vector(14, -34, 0), App.Vector(40, -34, 0)),
    Part.LineSegment(App.Vector(40, -34, 0), App.Vector(40, 34, 0)),
    Part.LineSegment(App.Vector(40, 34, 0), App.Vector(14, 34, 0)),
], False)
sketch20.addConstraint([
    Sketcher.Constraint("Coincident", 0, 2, 1, 1),
    Sketcher.Constraint("Coincident", 1, 2, 2, 1),
    Sketcher.Constraint("Coincident", 2, 2, 3, 1),
    Sketcher.Constraint("Coincident", 3, 2, 0, 1),
    Sketcher.Constraint("Vertical", 0),
    Sketcher.Constraint("Horizontal", 1),
    Sketcher.Constraint("Vertical", 2),
    Sketcher.Constraint("Horizontal", 3),
    Sketcher.Constraint("DistanceY", 0, 2, 0, 1, Q("69 mm")),
    Sketcher.Constraint("DistanceX", 1, 1, 1, 2, Q("25.8 mm")),
    Sketcher.Constraint("DistanceX", -1, 1, 1, 2, Q("40 mm")),
    Sketcher.Constraint("DistanceY", 0, 2, -1, 1, Q("34.5 mm")),
])
pad10 = body.newObject("PartDesign::Pad", "Pad009")
pad10.Profile = sketch20
pad10.Length = 6

sketch21 = body.newObject("Sketcher::SketchObject", "Sketch020")
sketch21.AttachmentSupport = (doc.getObject("XY_Plane"), [""])
sketch21.MapMode = "FlatFace"
sketch21.AttachmentOffset = App.Placement(App.Vector(0, 0, 187.9), App.Rotation())
sketch21.addGeometry([
    Part.LineSegment(App.Vector(37, -42, 0), App.Vector(37, 42, 0)),
    Part.LineSegment(App.Vector(37, 42, 0), App.Vector(24, 55, 0)),
    Part.LineSegment(App.Vector(24, 55, 0), App.Vector(-24, 55, 0)),
    Part.LineSegment(App.Vector(-24, 55, 0), App.Vector(-37, 42, 0)),
    Part.LineSegment(App.Vector(-37, 42, 0), App.Vector(-37, -42, 0)),
    Part.LineSegment(App.Vector(-37, -42, 0), App.Vector(-24, -55, 0)),
    Part.LineSegment(App.Vector(-24, -55, 0), App.Vector(24, -55, 0)),
    Part.LineSegment(App.Vector(24, -55, 0), App.Vector(37, -42, 0)),
], False)
sketch21.addConstraint([
    Sketcher.Constraint("Coincident", 0, 2, 1, 1),
    Sketcher.Constraint("Coincident", 1, 2, 2, 1),
    Sketcher.Constraint("Coincident", 2, 2, 3, 1),
    Sketcher.Constraint("Coincident", 3, 2, 4, 1),
    Sketcher.Constraint("Coincident", 4, 2, 5, 1),
    Sketcher.Constraint("Coincident", 5, 2, 6, 1),
    Sketcher.Constraint("Coincident", 6, 2, 7, 1),
    Sketcher.Constraint("Coincident", 7, 2, 0, 1),
    Sketcher.Constraint("Vertical", 0),
    Sketcher.Constraint("Horizontal", 2),
    Sketcher.Constraint("Vertical", 4),
    Sketcher.Constraint("Horizontal", 6),
    Sketcher.Constraint("Symmetric", 0, 2, 4, 2, -1, 1),
    Sketcher.Constraint("Symmetric", 1, 2, 5, 2, -1, 1),
    Sketcher.Constraint("Perpendicular", 1, 3),
    Sketcher.Constraint("Perpendicular", 5, 7),
    Sketcher.Constraint("Horizontal", 0, 2, 3, 2),
    Sketcher.Constraint("Horizontal", 4, 2, 7, 2),
    Sketcher.Constraint("Vertical", 2, 2, 5, 2),
    Sketcher.Constraint("DistanceX", -1, 1, 0, 2, Q("37.3 mm")),
    Sketcher.Constraint("DistanceY", -1, 1, 1, 2, Q("55.3 mm")),
    Sketcher.Constraint("Distance", 1, Q("18.73381 mm")),
])
pocket11 = body.newObject("PartDesign::Pocket", "Pocket010")
pocket11.Profile = sketch21
pocket11.Length = 11.2
pocket11.Reversed = True

sketch22 = body.newObject("Sketcher::SketchObject", "Sketch021")
sketch22.AttachmentSupport = (doc.getObject("YZ_Plane"), [""])
sketch22.MapMode = "FlatFace"
sketch22.AttachmentOffset = App.Placement(App.Vector(0, 0, 37.1), App.Rotation())
sketch22.addGeometry(Part.Circle(App.Vector(-15, 196.5, 0), App.Vector(0, 0, 1), 0.9), False)
sketch22.addConstraint([
    Sketcher.Constraint("Diameter", 0, Q("1.8 mm")),
    Sketcher.Constraint("DistanceX", 0, 3, -1, 1, Q("15 mm")),
    Sketcher.Constraint("DistanceY", -1, 1, 0, 3, Q("196.5 mm")),
])
pocket12 = body.newObject("PartDesign::Pocket", "Pocket011")
pocket12.Profile = sketch22
pocket12.Length = 2.7
pocket12.Reversed = True

sketch23 = body.newObject("Sketcher::SketchObject", "Sketch022")
sketch23.AttachmentSupport = (doc.getObject("YZ_Plane"), [""])
sketch23.MapMode = "FlatFace"
sketch23.AttachmentOffset = App.Placement(App.Vector(0, 0, 37.1), App.Rotation())
sketch23.addGeometry(Part.Circle(App.Vector(15, 196.5, 0), App.Vector(0, 0, 1), 0.9), False)
sketch23.addConstraint([
    Sketcher.Constraint("Diameter", 0, Q("1.8 mm")),
    Sketcher.Constraint("DistanceX", -1, 1, 0, 3, Q("15 mm")),
    Sketcher.Constraint("DistanceY", -1, 1, 0, 3, Q("196.5 mm")),
])
pocket13 = body.newObject("PartDesign::Pocket", "Pocket012")
pocket13.Profile = sketch23
pocket13.Length = 2.7
pocket13.Reversed = True

sketch24 = body.newObject("Sketcher::SketchObject", "Sketch023")
sketch24.AttachmentSupport = (doc.getObject("YZ_Plane"), [""])
sketch24.MapMode = "FlatFace"
sketch24.AttachmentOffset = App.Placement(App.Vector(0, 0, -39.8), App.Rotation())
sketch24.addGeometry(Part.Circle(App.Vector(-15, 196.5, 0), App.Vector(0, 0, 1), 0.9), False)
sketch24.addConstraint([
    Sketcher.Constraint("Diameter", 0, Q("1.8 mm")),
    Sketcher.Constraint("DistanceX", 0, 3, -1, 1, Q("15 mm")),
    Sketcher.Constraint("DistanceY", -1, 1, 0, 3, Q("196.5 mm")),
])
pocket14 = body.newObject("PartDesign::Pocket", "Pocket013")
pocket14.Profile = sketch24
pocket14.Length = 2.7
pocket14.Reversed = True

sketch25 = body.newObject("Sketcher::SketchObject", "Sketch024")
sketch25.AttachmentSupport = (doc.getObject("YZ_Plane"), [""])
sketch25.MapMode = "FlatFace"
sketch25.AttachmentOffset = App.Placement(App.Vector(0, 0, -39.8), App.Rotation())
sketch25.addGeometry(Part.Circle(App.Vector(15, 196.5, 0), App.Vector(0, 0, 1), 0.9), False)
sketch25.addConstraint([
    Sketcher.Constraint("Diameter", 0, Q("1.8 mm")),
    Sketcher.Constraint("DistanceX", -1, 1, 0, 3, Q("15 mm")),
    Sketcher.Constraint("DistanceY", -1, 1, 0, 3, Q("196.5 mm")),
])
pocket15 = body.newObject("PartDesign::Pocket", "Pocket014")
pocket15.Profile = sketch25
pocket15.Length = 2.7
pocket15.Reversed = True

sketch26 = body.newObject("Sketcher::SketchObject", "Sketch025")
sketch26.AttachmentSupport = (doc.getObject("YZ_Plane"), [""])
sketch26.MapMode = "FlatFace"
sketch26.AttachmentOffset = App.Placement(App.Vector(0, 0, -40.6), App.Rotation())
sketch26.addGeometry(Part.Circle(App.Vector(-29, 96, 0), App.Vector(0, 0, 1), 0.9), False)
sketch26.addConstraint([
    Sketcher.Constraint("Diameter", 0, Q("1.8 mm")),
    Sketcher.Constraint("DistanceX", 0, 3, -1, 1, Q("29 mm")),
    Sketcher.Constraint("DistanceY", -1, 1, 0, 3, Q("96 mm")),
])
pocket16 = body.newObject("PartDesign::Pocket", "Pocket015")
pocket16.Profile = sketch26
pocket16.Length = 7.2
pocket16.Reversed = True

sketch27 = body.newObject("Sketcher::SketchObject", "Sketch026")
sketch27.AttachmentSupport = (doc.getObject("YZ_Plane"), [""])
sketch27.MapMode = "FlatFace"
sketch27.AttachmentOffset = App.Placement(App.Vector(0, 0, -40.6), App.Rotation())
sketch27.addGeometry(Part.Circle(App.Vector(-29, 145, 0), App.Vector(0, 0, 1), 0.9), False)
sketch27.addConstraint([
    Sketcher.Constraint("Diameter", 0, Q("1.8 mm")),
    Sketcher.Constraint("DistanceX", 0, 3, -1, 1, Q("29 mm")),
    Sketcher.Constraint("DistanceY", -1, 1, 0, 3, Q("145 mm")),
])
pocket17 = body.newObject("PartDesign::Pocket", "Pocket016")
pocket17.Profile = sketch27
pocket17.Length = 7.2
pocket17.Reversed = True

sketch28 = body.newObject("Sketcher::SketchObject", "Sketch027")
sketch28.AttachmentSupport = (doc.getObject("YZ_Plane"), [""])
sketch28.MapMode = "FlatFace"
sketch28.AttachmentOffset = App.Placement(App.Vector(0, 0, -40.6), App.Rotation())
sketch28.addGeometry(Part.Circle(App.Vector(29, 96, 0), App.Vector(0, 0, 1), 0.9), False)
sketch28.addConstraint([
    Sketcher.Constraint("Diameter", 0, Q("1.8 mm")),
    Sketcher.Constraint("DistanceX", -1, 1, 0, 3, Q("29 mm")),
    Sketcher.Constraint("DistanceY", -1, 1, 0, 3, Q("96 mm")),
])
pocket18 = body.newObject("PartDesign::Pocket", "Pocket017")
pocket18.Profile = sketch28
pocket18.Length = 7.2
pocket18.Reversed = True

sketch29 = body.newObject("Sketcher::SketchObject", "Sketch028")
sketch29.AttachmentSupport = (doc.getObject("YZ_Plane"), [""])
sketch29.MapMode = "FlatFace"
sketch29.AttachmentOffset = App.Placement(App.Vector(0, 0, -40.6), App.Rotation())
sketch29.addGeometry(Part.Circle(App.Vector(29, 145, 0), App.Vector(0, 0, 1), 0.9), False)
sketch29.addConstraint([
    Sketcher.Constraint("Diameter", 0, Q("1.8 mm")),
    Sketcher.Constraint("DistanceX", -1, 1, 0, 3, Q("29 mm")),
    Sketcher.Constraint("DistanceY", -1, 1, 0, 3, Q("145 mm")),
])
pocket19 = body.newObject("PartDesign::Pocket", "Pocket018")
pocket19.Profile = sketch29
pocket19.Length = 7.2
pocket19.Reversed = True

sketch30 = body.newObject("Sketcher::SketchObject", "Sketch029")
sketch30.AttachmentSupport = (doc.getObject("YZ_Plane"), [""])
sketch30.MapMode = "FlatFace"
sketch30.AttachmentOffset = App.Placement(App.Vector(0, 0, 39), App.Rotation())
sketch30.addGeometry(Part.Circle(App.Vector(0, 150, 0), App.Vector(0, 0, 1), 10), False)
sketch30.addConstraint([
    Sketcher.Constraint("PointOnObject", 0, 3, -2),
    Sketcher.Constraint("Diameter", 0, Q("20 mm")),
    Sketcher.Constraint("DistanceY", -1, 1, 0, 3, Q("150 mm")),
])
pocket20 = body.newObject("PartDesign::Pocket", "Pocket019")
pocket20.Profile = sketch30
pocket20.Length = 3.1
pocket20.Reversed = True

sketch31 = body.newObject("Sketcher::SketchObject", "Sketch030")
sketch31.AttachmentSupport = (doc.getObject("YZ_Plane"), [""])
sketch31.MapMode = "FlatFace"
sketch31.AttachmentOffset = App.Placement(App.Vector(0, 0, 14.1), App.Rotation())
sketch31.addGeometry(Part.Circle(App.Vector(-22, 129.2, 0), App.Vector(0, 0, 1), 0.9), False)
sketch31.addConstraint([
    Sketcher.Constraint("Diameter", 0, Q("1.8 mm")),
    Sketcher.Constraint("DistanceX", 0, 3, -1, 1, Q("22 mm")),
    Sketcher.Constraint("DistanceY", -1, 1, 0, 3, Q("129.2 mm")),
])
pocket21 = body.newObject("PartDesign::Pocket", "Pocket020")
pocket21.Profile = sketch31
pocket21.Length = 9.1
pocket21.Reversed = True

sketch32 = body.newObject("Sketcher::SketchObject", "Sketch031")
sketch32.AttachmentSupport = (doc.getObject("YZ_Plane"), [""])
sketch32.MapMode = "FlatFace"
sketch32.AttachmentOffset = App.Placement(App.Vector(0, 0, 14.1), App.Rotation())
sketch32.addGeometry(Part.Circle(App.Vector(-22, 170.8, 0), App.Vector(0, 0, 1), 0.9), False)
sketch32.addConstraint([
    Sketcher.Constraint("Diameter", 0, Q("1.8 mm")),
    Sketcher.Constraint("DistanceX", 0, 3, -1, 1, Q("22 mm")),
    Sketcher.Constraint("DistanceY", -1, 1, 0, 3, Q("170.8 mm")),
])
pocket22 = body.newObject("PartDesign::Pocket", "Pocket021")
pocket22.Profile = sketch32
pocket22.Length = 9.1
pocket22.Reversed = True

sketch33 = body.newObject("Sketcher::SketchObject", "Sketch032")
sketch33.AttachmentSupport = (doc.getObject("YZ_Plane"), [""])
sketch33.MapMode = "FlatFace"
sketch33.AttachmentOffset = App.Placement(App.Vector(0, 0, 14.1), App.Rotation())
sketch33.addGeometry(Part.Circle(App.Vector(22, 129.2, 0), App.Vector(0, 0, 1), 0.9), False)
sketch33.addConstraint([
    Sketcher.Constraint("Diameter", 0, Q("1.8 mm")),
    Sketcher.Constraint("DistanceX", -1, 1, 0, 3, Q("22 mm")),
    Sketcher.Constraint("DistanceY", -1, 1, 0, 3, Q("129.2 mm")),
])
pocket23 = body.newObject("PartDesign::Pocket", "Pocket022")
pocket23.Profile = sketch33
pocket23.Length = 9.1
pocket23.Reversed = True

sketch34 = body.newObject("Sketcher::SketchObject", "Sketch033")
sketch34.AttachmentSupport = (doc.getObject("YZ_Plane"), [""])
sketch34.MapMode = "FlatFace"
sketch34.AttachmentOffset = App.Placement(App.Vector(0, 0, 14.1), App.Rotation())
sketch34.addGeometry(Part.Circle(App.Vector(22, 170.8, 0), App.Vector(0, 0, 1), 0.9), False)
sketch34.addConstraint([
    Sketcher.Constraint("Diameter", 0, Q("1.8 mm")),
    Sketcher.Constraint("DistanceX", -1, 1, 0, 3, Q("22 mm")),
    Sketcher.Constraint("DistanceY", -1, 1, 0, 3, Q("170.8 mm")),
])
pocket24 = body.newObject("PartDesign::Pocket", "Pocket023")
pocket24.Profile = sketch34
pocket24.Length = 9.1
pocket24.Reversed = True

doc.recompute()
